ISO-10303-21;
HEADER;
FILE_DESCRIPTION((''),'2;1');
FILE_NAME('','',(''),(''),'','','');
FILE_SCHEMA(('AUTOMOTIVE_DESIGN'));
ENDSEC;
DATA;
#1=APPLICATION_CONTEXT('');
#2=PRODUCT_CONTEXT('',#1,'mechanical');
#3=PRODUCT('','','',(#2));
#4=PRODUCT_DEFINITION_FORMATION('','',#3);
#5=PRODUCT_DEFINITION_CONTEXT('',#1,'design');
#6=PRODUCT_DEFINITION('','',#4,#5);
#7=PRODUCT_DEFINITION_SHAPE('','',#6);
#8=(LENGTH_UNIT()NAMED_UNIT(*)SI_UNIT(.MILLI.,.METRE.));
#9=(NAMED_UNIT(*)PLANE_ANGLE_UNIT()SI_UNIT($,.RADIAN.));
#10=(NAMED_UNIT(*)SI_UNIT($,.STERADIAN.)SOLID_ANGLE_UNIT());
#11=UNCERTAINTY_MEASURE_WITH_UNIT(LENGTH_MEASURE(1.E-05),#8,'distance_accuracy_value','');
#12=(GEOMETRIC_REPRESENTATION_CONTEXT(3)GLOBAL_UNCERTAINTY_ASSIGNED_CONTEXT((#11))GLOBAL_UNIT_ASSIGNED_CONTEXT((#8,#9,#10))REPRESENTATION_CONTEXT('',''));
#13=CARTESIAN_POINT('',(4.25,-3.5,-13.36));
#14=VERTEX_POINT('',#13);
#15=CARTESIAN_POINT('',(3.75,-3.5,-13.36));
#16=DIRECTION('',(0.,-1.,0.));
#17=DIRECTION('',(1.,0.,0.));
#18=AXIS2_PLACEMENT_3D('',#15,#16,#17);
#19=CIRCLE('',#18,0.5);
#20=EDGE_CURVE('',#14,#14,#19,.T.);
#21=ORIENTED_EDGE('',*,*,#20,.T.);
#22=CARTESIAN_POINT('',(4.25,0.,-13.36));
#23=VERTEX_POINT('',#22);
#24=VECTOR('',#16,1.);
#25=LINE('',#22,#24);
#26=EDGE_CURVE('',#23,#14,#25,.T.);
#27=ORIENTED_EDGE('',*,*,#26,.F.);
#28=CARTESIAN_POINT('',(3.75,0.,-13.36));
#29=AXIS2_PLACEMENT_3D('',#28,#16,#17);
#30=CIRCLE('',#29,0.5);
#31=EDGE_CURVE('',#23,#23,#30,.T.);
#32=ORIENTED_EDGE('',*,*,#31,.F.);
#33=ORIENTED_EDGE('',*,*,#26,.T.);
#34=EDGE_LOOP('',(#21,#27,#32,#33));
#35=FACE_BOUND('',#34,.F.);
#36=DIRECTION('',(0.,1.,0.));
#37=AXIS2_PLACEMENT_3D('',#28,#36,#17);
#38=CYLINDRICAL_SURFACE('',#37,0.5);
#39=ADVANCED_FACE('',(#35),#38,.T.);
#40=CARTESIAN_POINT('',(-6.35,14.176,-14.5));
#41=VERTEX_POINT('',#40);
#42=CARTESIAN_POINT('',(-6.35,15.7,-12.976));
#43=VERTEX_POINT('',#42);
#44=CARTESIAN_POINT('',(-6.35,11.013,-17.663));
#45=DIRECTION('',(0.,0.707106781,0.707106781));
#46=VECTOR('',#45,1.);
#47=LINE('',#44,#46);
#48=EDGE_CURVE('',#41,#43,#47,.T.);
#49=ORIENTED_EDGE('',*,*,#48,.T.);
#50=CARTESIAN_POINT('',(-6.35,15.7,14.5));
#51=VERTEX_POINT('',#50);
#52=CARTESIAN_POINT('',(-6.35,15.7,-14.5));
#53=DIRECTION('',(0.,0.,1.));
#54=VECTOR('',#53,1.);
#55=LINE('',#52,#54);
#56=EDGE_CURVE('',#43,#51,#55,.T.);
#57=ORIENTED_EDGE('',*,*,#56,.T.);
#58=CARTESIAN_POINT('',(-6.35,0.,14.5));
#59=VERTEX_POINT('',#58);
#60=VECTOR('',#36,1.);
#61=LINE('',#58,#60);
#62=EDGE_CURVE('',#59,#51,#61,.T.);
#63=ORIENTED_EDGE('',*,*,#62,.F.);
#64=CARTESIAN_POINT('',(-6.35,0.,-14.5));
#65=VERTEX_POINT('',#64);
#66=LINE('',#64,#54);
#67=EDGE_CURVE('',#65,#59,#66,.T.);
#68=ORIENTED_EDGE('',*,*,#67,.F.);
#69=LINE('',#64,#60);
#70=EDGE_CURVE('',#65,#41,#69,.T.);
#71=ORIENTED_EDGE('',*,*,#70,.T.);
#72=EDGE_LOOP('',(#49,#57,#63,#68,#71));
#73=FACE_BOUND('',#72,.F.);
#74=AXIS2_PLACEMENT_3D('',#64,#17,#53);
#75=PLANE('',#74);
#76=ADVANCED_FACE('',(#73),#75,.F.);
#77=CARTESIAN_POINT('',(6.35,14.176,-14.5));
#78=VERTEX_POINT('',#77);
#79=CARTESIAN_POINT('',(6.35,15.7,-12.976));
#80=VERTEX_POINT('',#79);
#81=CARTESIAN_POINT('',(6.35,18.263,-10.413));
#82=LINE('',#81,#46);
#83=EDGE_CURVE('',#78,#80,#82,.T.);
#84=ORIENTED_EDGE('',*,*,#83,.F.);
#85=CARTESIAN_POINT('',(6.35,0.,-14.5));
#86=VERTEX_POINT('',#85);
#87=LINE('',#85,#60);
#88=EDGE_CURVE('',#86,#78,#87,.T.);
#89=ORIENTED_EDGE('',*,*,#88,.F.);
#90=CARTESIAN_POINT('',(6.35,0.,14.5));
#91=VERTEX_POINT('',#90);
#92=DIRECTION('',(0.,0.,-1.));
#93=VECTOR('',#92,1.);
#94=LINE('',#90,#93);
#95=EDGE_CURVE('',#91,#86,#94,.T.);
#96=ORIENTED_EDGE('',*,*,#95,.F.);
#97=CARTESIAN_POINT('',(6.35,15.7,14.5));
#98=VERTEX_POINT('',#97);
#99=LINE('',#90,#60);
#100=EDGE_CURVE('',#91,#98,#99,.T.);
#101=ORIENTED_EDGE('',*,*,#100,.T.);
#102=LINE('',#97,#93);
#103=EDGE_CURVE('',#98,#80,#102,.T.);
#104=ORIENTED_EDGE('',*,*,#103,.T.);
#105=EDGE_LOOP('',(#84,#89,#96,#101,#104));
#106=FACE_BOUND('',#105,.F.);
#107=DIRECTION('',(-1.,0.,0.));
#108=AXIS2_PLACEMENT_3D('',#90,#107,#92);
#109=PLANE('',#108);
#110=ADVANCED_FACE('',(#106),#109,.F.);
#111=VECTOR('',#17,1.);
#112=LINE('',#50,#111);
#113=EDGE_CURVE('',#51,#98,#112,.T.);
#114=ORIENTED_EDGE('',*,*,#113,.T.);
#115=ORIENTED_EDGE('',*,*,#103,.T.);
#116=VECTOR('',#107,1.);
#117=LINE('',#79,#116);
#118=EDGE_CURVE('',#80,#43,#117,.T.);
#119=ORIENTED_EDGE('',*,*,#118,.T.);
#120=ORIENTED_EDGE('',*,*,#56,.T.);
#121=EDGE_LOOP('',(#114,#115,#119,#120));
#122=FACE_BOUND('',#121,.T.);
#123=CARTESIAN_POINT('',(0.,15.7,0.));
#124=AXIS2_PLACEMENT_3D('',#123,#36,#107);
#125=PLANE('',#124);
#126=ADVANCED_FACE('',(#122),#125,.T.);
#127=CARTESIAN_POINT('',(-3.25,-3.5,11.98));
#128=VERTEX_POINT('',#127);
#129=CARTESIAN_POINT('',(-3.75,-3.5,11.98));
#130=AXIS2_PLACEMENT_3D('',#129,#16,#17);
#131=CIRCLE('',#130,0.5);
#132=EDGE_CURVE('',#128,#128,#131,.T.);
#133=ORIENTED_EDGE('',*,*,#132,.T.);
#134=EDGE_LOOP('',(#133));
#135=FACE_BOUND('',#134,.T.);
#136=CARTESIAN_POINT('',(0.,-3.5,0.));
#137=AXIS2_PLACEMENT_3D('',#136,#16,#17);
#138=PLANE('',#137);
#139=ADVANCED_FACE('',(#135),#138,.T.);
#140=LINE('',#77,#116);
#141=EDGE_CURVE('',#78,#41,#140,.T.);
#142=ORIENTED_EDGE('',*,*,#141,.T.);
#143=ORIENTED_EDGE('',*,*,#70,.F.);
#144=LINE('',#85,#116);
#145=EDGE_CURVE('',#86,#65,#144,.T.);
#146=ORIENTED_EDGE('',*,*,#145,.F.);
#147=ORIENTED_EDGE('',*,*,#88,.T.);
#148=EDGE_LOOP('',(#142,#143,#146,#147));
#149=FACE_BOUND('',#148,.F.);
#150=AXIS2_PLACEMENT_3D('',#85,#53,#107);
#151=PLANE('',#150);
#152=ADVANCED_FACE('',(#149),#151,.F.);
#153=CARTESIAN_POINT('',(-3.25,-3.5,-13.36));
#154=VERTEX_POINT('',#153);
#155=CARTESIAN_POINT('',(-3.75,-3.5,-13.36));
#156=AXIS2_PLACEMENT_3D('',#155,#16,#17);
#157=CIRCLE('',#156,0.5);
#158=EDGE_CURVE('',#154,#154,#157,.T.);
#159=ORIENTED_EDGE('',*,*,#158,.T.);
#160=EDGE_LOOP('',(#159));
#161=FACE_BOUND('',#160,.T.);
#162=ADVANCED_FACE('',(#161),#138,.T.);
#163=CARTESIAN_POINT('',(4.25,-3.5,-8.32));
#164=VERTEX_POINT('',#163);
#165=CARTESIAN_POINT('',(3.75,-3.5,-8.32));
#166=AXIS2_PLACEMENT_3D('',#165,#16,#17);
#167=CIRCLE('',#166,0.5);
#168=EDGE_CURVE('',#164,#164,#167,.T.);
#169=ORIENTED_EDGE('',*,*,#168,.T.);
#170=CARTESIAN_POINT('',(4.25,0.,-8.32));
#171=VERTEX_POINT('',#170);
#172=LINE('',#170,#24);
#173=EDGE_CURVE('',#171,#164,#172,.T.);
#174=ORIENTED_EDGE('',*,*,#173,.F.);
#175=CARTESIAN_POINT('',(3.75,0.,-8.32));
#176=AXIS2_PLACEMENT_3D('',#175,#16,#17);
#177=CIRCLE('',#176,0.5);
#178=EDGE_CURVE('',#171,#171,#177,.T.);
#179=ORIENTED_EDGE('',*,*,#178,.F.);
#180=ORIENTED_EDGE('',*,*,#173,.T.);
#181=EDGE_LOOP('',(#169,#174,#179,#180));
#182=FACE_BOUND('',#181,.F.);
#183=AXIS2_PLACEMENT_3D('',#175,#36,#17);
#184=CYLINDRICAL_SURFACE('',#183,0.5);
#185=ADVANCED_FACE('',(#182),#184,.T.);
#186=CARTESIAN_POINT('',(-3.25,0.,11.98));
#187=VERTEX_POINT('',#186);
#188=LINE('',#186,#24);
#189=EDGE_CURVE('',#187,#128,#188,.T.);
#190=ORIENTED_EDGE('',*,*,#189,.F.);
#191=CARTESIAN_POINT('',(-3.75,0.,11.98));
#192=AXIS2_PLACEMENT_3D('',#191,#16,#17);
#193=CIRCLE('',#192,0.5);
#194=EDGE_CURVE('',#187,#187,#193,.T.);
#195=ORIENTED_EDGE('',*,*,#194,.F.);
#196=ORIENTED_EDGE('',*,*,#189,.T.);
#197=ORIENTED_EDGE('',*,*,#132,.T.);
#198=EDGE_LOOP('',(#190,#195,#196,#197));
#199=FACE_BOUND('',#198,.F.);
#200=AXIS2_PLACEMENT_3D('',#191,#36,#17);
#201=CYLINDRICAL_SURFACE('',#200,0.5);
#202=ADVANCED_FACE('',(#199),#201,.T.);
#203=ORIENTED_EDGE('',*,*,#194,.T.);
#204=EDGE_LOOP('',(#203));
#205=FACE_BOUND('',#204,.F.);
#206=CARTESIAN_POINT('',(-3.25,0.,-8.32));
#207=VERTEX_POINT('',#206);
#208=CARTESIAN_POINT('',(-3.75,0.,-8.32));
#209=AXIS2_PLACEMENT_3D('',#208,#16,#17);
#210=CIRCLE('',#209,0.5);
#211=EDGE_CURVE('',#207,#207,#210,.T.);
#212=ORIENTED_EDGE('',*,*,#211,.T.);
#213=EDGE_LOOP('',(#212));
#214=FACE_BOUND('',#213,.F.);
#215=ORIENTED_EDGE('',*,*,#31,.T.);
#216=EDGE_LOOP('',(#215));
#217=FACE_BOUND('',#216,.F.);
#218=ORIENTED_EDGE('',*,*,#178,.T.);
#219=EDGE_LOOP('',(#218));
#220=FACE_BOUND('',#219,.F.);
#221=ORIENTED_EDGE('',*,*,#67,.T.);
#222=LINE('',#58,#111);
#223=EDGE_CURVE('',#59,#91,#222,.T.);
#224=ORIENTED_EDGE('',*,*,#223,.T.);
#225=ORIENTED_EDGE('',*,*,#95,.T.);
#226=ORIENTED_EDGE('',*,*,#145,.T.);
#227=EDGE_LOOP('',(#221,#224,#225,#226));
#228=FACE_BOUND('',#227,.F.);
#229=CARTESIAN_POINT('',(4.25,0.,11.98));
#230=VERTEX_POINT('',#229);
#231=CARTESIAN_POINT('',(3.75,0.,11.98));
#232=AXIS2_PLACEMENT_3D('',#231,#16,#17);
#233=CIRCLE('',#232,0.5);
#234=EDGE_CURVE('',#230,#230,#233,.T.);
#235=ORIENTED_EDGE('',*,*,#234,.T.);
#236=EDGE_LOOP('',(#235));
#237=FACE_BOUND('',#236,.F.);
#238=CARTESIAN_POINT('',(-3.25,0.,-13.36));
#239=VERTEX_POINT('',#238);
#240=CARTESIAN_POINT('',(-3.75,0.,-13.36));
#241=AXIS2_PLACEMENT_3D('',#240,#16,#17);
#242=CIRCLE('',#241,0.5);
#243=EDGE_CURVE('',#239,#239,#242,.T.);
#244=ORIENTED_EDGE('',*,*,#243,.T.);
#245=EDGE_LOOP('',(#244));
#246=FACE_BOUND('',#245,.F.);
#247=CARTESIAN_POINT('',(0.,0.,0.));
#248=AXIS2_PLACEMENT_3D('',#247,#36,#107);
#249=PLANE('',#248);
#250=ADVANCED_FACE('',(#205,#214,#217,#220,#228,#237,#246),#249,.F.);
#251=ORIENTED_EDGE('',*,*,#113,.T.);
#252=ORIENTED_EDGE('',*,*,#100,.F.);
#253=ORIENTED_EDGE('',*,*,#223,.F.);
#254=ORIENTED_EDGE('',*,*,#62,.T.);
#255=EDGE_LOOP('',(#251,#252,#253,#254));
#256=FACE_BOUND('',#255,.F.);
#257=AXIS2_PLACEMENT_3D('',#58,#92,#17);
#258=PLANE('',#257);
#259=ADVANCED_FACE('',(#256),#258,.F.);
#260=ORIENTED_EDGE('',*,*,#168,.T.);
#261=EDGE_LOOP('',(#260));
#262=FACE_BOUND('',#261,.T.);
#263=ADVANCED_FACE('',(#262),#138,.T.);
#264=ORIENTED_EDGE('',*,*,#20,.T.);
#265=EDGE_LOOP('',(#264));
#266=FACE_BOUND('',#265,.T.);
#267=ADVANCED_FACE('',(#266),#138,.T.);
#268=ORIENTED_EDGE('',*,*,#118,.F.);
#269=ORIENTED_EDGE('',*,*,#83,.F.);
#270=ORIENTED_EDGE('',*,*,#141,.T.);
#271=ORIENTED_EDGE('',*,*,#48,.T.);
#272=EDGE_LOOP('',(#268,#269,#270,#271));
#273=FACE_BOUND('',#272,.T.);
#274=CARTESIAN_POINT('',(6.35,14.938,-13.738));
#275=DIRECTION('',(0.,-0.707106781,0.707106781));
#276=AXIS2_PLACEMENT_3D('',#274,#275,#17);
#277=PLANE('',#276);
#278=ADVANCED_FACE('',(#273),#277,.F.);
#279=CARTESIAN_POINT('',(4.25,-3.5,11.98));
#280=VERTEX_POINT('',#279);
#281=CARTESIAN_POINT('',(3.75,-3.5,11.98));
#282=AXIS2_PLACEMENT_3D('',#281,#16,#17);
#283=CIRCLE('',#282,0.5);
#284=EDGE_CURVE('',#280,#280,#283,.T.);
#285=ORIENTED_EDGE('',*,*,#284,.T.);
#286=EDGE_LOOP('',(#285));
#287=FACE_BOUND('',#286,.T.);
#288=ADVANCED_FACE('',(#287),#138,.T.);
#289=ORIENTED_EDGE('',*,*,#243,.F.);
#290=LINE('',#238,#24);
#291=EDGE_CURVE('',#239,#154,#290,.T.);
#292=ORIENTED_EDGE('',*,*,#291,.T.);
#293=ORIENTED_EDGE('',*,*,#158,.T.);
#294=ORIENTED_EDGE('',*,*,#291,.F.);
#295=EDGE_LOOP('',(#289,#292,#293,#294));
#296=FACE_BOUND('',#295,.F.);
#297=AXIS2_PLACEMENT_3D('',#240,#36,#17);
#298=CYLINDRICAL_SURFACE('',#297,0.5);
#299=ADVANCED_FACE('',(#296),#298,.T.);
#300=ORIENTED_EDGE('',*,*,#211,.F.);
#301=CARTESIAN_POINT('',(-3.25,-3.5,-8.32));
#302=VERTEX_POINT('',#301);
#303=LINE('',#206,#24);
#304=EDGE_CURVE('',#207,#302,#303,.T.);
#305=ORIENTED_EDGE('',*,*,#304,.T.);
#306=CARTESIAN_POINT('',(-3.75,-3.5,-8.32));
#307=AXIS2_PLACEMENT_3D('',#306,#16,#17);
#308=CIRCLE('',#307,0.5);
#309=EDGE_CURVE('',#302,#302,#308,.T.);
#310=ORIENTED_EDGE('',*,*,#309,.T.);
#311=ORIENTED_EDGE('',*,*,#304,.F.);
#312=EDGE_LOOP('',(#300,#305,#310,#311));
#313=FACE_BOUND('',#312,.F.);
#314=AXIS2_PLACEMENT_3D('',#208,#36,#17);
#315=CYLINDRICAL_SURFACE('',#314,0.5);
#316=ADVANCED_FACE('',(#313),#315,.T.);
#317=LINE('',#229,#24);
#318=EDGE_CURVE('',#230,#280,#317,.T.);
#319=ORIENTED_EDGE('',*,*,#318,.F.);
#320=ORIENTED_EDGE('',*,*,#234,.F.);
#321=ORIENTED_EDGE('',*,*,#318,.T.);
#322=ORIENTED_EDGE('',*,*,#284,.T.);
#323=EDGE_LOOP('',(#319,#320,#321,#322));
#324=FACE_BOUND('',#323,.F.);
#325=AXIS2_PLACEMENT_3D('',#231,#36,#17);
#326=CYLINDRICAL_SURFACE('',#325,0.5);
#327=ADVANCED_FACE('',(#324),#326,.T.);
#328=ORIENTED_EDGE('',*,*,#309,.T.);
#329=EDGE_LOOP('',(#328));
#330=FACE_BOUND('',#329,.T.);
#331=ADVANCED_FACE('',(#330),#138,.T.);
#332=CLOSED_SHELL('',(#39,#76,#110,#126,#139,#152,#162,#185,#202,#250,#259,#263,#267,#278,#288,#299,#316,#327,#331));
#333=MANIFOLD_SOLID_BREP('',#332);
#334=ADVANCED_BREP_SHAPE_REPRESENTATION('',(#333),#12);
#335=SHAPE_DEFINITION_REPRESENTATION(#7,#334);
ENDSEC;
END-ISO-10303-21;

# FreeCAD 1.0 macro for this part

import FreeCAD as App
import Part
import Sketcher

V = App.Vector
Q = App.Units.Quantity


def edges_at(feature, points):
    """Names of the edges that pass closest to the given points."""
    edges = feature.Shape.Edges
    near = lambda p: min(range(len(edges)), key=lambda i: edges[i].distToShape(Part.Vertex(*p))[0])
    return sorted({f"Edge{near(p) + 1}" for p in points})


def add_polygon(sketch, points):
    """Adds a closed chain of lines whose ends are joined by coincident constraints."""
    first, n = sketch.GeometryCount, len(points)
    for a, b in zip(points, points[1:] + points[:1]):
        sketch.addGeometry(Part.LineSegment(App.Vector(*a, 0), App.Vector(*b, 0)), False)
    for i in range(n):
        sketch.addConstraint(Sketcher.Constraint("Coincident", first + i, 2, first + (i + 1) % n, 1))

doc = App.newDocument("Part")
body = doc.addObject("PartDesign::Body", "Body")

# Sketch on XZ plane
sketch1 = doc.addObject("Sketcher::SketchObject", "Sketch")
body.addObject(sketch1)
sketch1.AttachmentSupport = (doc.XZ_Plane, [""])
sketch1.MapMode = "FlatFace"
add_polygon(sketch1, [(-6.35, -14.5), (-6.35, 14.5), (6.35, 14.5), (6.35, -14.5)])  # lines 0-3
sketch1.addConstraint(Sketcher.Constraint("Vertical", 0))
sketch1.addConstraint(Sketcher.Constraint("Horizontal", 1))
sketch1.addConstraint(Sketcher.Constraint("Vertical", 2))
sketch1.addConstraint(Sketcher.Constraint("Horizontal", 3))
sketch1.addConstraint(Sketcher.Constraint("Symmetric", 0, 2, 2, 2, -1, 1))
sketch1.addConstraint(Sketcher.Constraint("DistanceY", 0, 1, 0, 2, Q("29 mm")))
sketch1.addConstraint(Sketcher.Constraint("DistanceX", 1, 1, 1, 2, Q("12.7 mm")))
pad1 = doc.addObject("PartDesign::Pad", "Pad")
body.addObject(pad1)
pad1.Profile = sketch1
pad1.Length = 15.7
pad1.Reversed = True

# Sketch on XZ plane
sketch2 = doc.addObject("Sketcher::SketchObject", "Sketch001")
body.addObject(sketch2)
sketch2.AttachmentSupport = (doc.XZ_Plane, [""])
sketch2.MapMode = "FlatFace"
sketch2.addGeometry(Part.Circle(V(3.75, -13.36, 0), V(0, 0, 1), 0.5), False)
sketch2.addGeometry(Part.Circle(V(-3.75, -8.32, 0), V(0, 0, 1), 0.5), False)
sketch2.addGeometry(Part.Circle(V(3.75, -8.32, 0), V(0, 0, 1), 0.5), False)
sketch2.addGeometry(Part.Circle(V(-3.75, -13.36, 0), V(0, 0, 1), 0.5), False)
sketch2.addGeometry(Part.Circle(V(3.75, 11.98, 0), V(0, 0, 1), 0.5), False)
sketch2.addGeometry(Part.Circle(V(-3.75, 11.98, 0), V(0, 0, 1), 0.5), False)
sketch2.addConstraint(Sketcher.Constraint("Equal", 0, 1))
sketch2.addConstraint(Sketcher.Constraint("Equal", 1, 2))
sketch2.addConstraint(Sketcher.Constraint("Equal", 2, 3))
sketch2.addConstraint(Sketcher.Constraint("Equal", 3, 4))
sketch2.addConstraint(Sketcher.Constraint("Equal", 4, 5))
sketch2.addConstraint(Sketcher.Constraint("Symmetric", 1, 3, 2, 3, -2))
sketch2.addConstraint(Sketcher.Constraint("Symmetric", 0, 3, 3, 3, -2))
sketch2.addConstraint(Sketcher.Constraint("Symmetric", 4, 3, 5, 3, -2))
sketch2.addConstraint(Sketcher.Constraint("Vertical", 0, 3, 2, 3))
sketch2.addConstraint(Sketcher.Constraint("Vertical", 2, 3, 4, 3))
sketch2.addConstraint(Sketcher.Constraint("Diameter", 0, Q("1 mm")))
sketch2.addConstraint(Sketcher.Constraint("DistanceX", 1, 3, 0, 3, Q("7.5 mm")))
sketch2.addConstraint(Sketcher.Constraint("DistanceY", 2, 3, 4, 3, Q("20.3 mm")))
sketch2.addConstraint(Sketcher.Constraint("DistanceY", 0, 3, 1, 3, Q("5.04 mm")))
sketch2.addConstraint(Sketcher.Constraint("DistanceY", 0, 3, -1, 1, Q("13.36 mm")))
pad2 = doc.addObject("PartDesign::Pad", "Pad001")
body.addObject(pad2)
pad2.Profile = sketch2
pad2.Length = 3.5
doc.recompute()

chamfer = doc.addObject("PartDesign::Chamfer", "Chamfer")
body.addObject(chamfer)
chamfer.Base = (pad2, edges_at(pad2, [(0, 15.7, -14.5)]))
chamfer.Size = 1.524

doc.recompute()
